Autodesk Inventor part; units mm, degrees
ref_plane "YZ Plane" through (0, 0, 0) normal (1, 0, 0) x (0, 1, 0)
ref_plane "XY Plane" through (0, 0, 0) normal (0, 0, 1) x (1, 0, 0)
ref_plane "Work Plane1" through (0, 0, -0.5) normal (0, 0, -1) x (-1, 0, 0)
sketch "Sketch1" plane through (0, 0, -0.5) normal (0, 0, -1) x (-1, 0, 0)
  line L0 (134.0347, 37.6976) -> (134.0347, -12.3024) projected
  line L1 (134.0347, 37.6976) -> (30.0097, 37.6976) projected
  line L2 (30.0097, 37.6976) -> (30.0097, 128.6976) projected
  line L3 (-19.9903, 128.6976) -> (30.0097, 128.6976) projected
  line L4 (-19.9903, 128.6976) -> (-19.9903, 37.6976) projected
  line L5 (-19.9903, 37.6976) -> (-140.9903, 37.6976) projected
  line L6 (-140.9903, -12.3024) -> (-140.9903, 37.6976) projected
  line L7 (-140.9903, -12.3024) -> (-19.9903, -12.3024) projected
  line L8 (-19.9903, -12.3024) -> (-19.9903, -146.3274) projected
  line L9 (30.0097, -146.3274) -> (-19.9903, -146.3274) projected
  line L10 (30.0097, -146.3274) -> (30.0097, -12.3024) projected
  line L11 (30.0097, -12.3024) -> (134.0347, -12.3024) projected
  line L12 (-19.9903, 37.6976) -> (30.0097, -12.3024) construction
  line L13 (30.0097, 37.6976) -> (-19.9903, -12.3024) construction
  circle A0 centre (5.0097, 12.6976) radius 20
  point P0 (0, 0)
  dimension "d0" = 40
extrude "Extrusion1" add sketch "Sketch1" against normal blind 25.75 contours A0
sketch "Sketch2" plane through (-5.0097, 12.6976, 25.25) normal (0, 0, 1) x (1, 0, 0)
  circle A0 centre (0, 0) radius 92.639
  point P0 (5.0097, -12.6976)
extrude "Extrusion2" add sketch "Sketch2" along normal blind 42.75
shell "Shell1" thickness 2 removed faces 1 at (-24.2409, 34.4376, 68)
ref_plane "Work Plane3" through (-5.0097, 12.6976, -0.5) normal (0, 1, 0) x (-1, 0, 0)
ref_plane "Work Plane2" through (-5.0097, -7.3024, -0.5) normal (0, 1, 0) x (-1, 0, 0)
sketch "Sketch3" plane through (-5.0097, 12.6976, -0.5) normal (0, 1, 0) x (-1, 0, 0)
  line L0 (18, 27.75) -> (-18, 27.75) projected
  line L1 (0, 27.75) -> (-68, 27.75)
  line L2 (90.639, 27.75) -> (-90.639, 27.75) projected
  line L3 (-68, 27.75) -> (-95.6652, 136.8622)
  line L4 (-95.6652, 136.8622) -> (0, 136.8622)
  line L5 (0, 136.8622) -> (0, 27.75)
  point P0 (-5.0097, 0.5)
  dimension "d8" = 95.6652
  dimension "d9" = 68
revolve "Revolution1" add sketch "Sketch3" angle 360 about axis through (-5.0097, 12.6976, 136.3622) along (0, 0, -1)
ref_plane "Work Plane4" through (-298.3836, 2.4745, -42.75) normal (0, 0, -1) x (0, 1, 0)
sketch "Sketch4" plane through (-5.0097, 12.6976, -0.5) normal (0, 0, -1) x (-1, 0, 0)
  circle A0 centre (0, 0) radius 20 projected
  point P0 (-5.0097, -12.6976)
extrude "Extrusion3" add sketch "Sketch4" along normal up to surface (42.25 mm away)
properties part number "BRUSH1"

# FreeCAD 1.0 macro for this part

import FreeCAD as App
import Part
import Sketcher
Q = App.Units.Quantity


def faces_at(feature, points):
    """Names of the faces that lie closest to the given points."""
    faces = feature.Shape.Faces
    near = lambda p: min(range(len(faces)), key=lambda i: faces[i].distToShape(Part.Vertex(*p))[0])
    return sorted({f"Face{near(p) + 1}" for p in points})

doc = App.newDocument("Part")
body = doc.addObject("PartDesign::Body", "Body")

# Sketch on XY plane
sketch1 = body.newObject("Sketcher::SketchObject", "Sketch")
sketch1.AttachmentSupport = (doc.getObject("XY_Plane"), [""])
sketch1.MapMode = "FlatFace"
sketch1.AttachmentOffset = App.Placement(App.Vector(0, 0, -0.5), App.Rotation())
sketch1.addGeometry(Part.Circle(App.Vector(-5, 13, 0), App.Vector(0, 0, 1), 20), False)
sketch1.addConstraint([
    Sketcher.Constraint("Diameter", 0, Q("40 mm")),
    Sketcher.Constraint("DistanceX", 0, 3, -1, 1, Q("5.0097 mm")),
    Sketcher.Constraint("DistanceY", -1, 1, 0, 3, Q("12.6976 mm")),
])
pad1 = body.newObject("PartDesign::Pad", "Pad")
pad1.Profile = sketch1
pad1.Length = 25.75

# Sketch on XY plane
sketch2 = body.newObject("Sketcher::SketchObject", "Sketch001")
sketch2.AttachmentSupport = (doc.getObject("XY_Plane"), [""])
sketch2.MapMode = "FlatFace"
sketch2.AttachmentOffset = App.Placement(App.Vector(0, 0, 25.25), App.Rotation())
sketch2.addGeometry(Part.Circle(App.Vector(-5, 13, 0), App.Vector(0, 0, 1), 93), False)
sketch2.addConstraint([
    Sketcher.Constraint("Diameter", 0, Q("185.278 mm")),
    Sketcher.Constraint("DistanceX", 0, 3, -1, 1, Q("5.0097 mm")),
    Sketcher.Constraint("DistanceY", -1, 1, 0, 3, Q("12.6976 mm")),
])
pad2 = body.newObject("PartDesign::Pad", "Pad001")
pad2.Profile = sketch2
pad2.Length = 42.75
doc.recompute()

thickness = body.newObject("PartDesign::Thickness", "Thickness")
thickness.Base = (pad2, faces_at(pad2, [(-24.241, 34.438, 68)]))
thickness.Value = 2
thickness.Reversed = True
thickness.Join = "Intersection"

# Sketch on XZ plane
sketch3 = body.newObject("Sketcher::SketchObject", "Sketch002")
sketch3.AttachmentSupport = (doc.getObject("XZ_Plane"), [""])
sketch3.MapMode = "FlatFace"
sketch3.AttachmentOffset = App.Placement(App.Vector(0, 0, -12.6976), App.Rotation())
sketch3.addGeometry([
    Part.LineSegment(App.Vector(63, 27, 0), App.Vector(-5, 27, 0)),
    Part.LineSegment(App.Vector(-5, 27, 0), App.Vector(-5, 136, 0)),
    Part.LineSegment(App.Vector(-5, 136, 0), App.Vector(91, 136, 0)),
    Part.LineSegment(App.Vector(91, 136, 0), App.Vector(63, 27, 0)),
], False)
sketch3.addGeometry(Part.LineSegment(App.Vector(-5, 136, 0), App.Vector(-5, 27, 0)), True)  # axis
sketch3.addConstraint([
    Sketcher.Constraint("Coincident", 0, 2, 1, 1),
    Sketcher.Constraint("Coincident", 1, 2, 2, 1),
    Sketcher.Constraint("Coincident", 2, 2, 3, 1),
    Sketcher.Constraint("Coincident", 3, 2, 0, 1),
    Sketcher.Constraint("Horizontal", 0),
    Sketcher.Constraint("Vertical", 1),
    Sketcher.Constraint("Horizontal", 2),
    Sketcher.Constraint("Vertical", 4),
    Sketcher.Constraint("Coincident", 4, 1, 1, 2),
    Sketcher.Constraint("Horizontal", 3, 2, 4, 2),
    Sketcher.Constraint("DistanceX", 0, 2, 0, 1, Q("68 mm")),
    Sketcher.Constraint("DistanceX", 2, 1, 2, 2, Q("95.6652 mm")),
    Sketcher.Constraint("DistanceY", -1, 1, 0, 2, Q("27.25 mm")),
    Sketcher.Constraint("DistanceY", 1, 1, 1, 2, Q("109.1122 mm")),
    Sketcher.Constraint("DistanceX", 0, 2, -1, 1, Q("5.0097 mm")),
])
revolution = body.newObject("PartDesign::Revolution", "Revolution")
revolution.Profile = sketch3
revolution.ReferenceAxis = (sketch3, ["Axis0"])
revolution.Angle = 360

# Sketch on XY plane
sketch4 = body.newObject("Sketcher::SketchObject", "Sketch003")
sketch4.AttachmentSupport = (doc.getObject("XY_Plane"), [""])
sketch4.MapMode = "FlatFace"
sketch4.AttachmentOffset = App.Placement(App.Vector(0, 0, -0.5), App.Rotation())
sketch4.addGeometry(Part.Circle(App.Vector(-5, 13, 0), App.Vector(0, 0, 1), 20), False)
sketch4.addConstraint([
    Sketcher.Constraint("Diameter", 0, Q("40 mm")),
    Sketcher.Constraint("DistanceX", 0, 3, -1, 1, Q("5.0097 mm")),
    Sketcher.Constraint("DistanceY", -1, 1, 0, 3, Q("12.6976 mm")),
])
pad3 = body.newObject("PartDesign::Pad", "Pad002")
pad3.Profile = sketch4
pad3.Length = 42.25
pad3.Reversed = True

doc.recompute()
